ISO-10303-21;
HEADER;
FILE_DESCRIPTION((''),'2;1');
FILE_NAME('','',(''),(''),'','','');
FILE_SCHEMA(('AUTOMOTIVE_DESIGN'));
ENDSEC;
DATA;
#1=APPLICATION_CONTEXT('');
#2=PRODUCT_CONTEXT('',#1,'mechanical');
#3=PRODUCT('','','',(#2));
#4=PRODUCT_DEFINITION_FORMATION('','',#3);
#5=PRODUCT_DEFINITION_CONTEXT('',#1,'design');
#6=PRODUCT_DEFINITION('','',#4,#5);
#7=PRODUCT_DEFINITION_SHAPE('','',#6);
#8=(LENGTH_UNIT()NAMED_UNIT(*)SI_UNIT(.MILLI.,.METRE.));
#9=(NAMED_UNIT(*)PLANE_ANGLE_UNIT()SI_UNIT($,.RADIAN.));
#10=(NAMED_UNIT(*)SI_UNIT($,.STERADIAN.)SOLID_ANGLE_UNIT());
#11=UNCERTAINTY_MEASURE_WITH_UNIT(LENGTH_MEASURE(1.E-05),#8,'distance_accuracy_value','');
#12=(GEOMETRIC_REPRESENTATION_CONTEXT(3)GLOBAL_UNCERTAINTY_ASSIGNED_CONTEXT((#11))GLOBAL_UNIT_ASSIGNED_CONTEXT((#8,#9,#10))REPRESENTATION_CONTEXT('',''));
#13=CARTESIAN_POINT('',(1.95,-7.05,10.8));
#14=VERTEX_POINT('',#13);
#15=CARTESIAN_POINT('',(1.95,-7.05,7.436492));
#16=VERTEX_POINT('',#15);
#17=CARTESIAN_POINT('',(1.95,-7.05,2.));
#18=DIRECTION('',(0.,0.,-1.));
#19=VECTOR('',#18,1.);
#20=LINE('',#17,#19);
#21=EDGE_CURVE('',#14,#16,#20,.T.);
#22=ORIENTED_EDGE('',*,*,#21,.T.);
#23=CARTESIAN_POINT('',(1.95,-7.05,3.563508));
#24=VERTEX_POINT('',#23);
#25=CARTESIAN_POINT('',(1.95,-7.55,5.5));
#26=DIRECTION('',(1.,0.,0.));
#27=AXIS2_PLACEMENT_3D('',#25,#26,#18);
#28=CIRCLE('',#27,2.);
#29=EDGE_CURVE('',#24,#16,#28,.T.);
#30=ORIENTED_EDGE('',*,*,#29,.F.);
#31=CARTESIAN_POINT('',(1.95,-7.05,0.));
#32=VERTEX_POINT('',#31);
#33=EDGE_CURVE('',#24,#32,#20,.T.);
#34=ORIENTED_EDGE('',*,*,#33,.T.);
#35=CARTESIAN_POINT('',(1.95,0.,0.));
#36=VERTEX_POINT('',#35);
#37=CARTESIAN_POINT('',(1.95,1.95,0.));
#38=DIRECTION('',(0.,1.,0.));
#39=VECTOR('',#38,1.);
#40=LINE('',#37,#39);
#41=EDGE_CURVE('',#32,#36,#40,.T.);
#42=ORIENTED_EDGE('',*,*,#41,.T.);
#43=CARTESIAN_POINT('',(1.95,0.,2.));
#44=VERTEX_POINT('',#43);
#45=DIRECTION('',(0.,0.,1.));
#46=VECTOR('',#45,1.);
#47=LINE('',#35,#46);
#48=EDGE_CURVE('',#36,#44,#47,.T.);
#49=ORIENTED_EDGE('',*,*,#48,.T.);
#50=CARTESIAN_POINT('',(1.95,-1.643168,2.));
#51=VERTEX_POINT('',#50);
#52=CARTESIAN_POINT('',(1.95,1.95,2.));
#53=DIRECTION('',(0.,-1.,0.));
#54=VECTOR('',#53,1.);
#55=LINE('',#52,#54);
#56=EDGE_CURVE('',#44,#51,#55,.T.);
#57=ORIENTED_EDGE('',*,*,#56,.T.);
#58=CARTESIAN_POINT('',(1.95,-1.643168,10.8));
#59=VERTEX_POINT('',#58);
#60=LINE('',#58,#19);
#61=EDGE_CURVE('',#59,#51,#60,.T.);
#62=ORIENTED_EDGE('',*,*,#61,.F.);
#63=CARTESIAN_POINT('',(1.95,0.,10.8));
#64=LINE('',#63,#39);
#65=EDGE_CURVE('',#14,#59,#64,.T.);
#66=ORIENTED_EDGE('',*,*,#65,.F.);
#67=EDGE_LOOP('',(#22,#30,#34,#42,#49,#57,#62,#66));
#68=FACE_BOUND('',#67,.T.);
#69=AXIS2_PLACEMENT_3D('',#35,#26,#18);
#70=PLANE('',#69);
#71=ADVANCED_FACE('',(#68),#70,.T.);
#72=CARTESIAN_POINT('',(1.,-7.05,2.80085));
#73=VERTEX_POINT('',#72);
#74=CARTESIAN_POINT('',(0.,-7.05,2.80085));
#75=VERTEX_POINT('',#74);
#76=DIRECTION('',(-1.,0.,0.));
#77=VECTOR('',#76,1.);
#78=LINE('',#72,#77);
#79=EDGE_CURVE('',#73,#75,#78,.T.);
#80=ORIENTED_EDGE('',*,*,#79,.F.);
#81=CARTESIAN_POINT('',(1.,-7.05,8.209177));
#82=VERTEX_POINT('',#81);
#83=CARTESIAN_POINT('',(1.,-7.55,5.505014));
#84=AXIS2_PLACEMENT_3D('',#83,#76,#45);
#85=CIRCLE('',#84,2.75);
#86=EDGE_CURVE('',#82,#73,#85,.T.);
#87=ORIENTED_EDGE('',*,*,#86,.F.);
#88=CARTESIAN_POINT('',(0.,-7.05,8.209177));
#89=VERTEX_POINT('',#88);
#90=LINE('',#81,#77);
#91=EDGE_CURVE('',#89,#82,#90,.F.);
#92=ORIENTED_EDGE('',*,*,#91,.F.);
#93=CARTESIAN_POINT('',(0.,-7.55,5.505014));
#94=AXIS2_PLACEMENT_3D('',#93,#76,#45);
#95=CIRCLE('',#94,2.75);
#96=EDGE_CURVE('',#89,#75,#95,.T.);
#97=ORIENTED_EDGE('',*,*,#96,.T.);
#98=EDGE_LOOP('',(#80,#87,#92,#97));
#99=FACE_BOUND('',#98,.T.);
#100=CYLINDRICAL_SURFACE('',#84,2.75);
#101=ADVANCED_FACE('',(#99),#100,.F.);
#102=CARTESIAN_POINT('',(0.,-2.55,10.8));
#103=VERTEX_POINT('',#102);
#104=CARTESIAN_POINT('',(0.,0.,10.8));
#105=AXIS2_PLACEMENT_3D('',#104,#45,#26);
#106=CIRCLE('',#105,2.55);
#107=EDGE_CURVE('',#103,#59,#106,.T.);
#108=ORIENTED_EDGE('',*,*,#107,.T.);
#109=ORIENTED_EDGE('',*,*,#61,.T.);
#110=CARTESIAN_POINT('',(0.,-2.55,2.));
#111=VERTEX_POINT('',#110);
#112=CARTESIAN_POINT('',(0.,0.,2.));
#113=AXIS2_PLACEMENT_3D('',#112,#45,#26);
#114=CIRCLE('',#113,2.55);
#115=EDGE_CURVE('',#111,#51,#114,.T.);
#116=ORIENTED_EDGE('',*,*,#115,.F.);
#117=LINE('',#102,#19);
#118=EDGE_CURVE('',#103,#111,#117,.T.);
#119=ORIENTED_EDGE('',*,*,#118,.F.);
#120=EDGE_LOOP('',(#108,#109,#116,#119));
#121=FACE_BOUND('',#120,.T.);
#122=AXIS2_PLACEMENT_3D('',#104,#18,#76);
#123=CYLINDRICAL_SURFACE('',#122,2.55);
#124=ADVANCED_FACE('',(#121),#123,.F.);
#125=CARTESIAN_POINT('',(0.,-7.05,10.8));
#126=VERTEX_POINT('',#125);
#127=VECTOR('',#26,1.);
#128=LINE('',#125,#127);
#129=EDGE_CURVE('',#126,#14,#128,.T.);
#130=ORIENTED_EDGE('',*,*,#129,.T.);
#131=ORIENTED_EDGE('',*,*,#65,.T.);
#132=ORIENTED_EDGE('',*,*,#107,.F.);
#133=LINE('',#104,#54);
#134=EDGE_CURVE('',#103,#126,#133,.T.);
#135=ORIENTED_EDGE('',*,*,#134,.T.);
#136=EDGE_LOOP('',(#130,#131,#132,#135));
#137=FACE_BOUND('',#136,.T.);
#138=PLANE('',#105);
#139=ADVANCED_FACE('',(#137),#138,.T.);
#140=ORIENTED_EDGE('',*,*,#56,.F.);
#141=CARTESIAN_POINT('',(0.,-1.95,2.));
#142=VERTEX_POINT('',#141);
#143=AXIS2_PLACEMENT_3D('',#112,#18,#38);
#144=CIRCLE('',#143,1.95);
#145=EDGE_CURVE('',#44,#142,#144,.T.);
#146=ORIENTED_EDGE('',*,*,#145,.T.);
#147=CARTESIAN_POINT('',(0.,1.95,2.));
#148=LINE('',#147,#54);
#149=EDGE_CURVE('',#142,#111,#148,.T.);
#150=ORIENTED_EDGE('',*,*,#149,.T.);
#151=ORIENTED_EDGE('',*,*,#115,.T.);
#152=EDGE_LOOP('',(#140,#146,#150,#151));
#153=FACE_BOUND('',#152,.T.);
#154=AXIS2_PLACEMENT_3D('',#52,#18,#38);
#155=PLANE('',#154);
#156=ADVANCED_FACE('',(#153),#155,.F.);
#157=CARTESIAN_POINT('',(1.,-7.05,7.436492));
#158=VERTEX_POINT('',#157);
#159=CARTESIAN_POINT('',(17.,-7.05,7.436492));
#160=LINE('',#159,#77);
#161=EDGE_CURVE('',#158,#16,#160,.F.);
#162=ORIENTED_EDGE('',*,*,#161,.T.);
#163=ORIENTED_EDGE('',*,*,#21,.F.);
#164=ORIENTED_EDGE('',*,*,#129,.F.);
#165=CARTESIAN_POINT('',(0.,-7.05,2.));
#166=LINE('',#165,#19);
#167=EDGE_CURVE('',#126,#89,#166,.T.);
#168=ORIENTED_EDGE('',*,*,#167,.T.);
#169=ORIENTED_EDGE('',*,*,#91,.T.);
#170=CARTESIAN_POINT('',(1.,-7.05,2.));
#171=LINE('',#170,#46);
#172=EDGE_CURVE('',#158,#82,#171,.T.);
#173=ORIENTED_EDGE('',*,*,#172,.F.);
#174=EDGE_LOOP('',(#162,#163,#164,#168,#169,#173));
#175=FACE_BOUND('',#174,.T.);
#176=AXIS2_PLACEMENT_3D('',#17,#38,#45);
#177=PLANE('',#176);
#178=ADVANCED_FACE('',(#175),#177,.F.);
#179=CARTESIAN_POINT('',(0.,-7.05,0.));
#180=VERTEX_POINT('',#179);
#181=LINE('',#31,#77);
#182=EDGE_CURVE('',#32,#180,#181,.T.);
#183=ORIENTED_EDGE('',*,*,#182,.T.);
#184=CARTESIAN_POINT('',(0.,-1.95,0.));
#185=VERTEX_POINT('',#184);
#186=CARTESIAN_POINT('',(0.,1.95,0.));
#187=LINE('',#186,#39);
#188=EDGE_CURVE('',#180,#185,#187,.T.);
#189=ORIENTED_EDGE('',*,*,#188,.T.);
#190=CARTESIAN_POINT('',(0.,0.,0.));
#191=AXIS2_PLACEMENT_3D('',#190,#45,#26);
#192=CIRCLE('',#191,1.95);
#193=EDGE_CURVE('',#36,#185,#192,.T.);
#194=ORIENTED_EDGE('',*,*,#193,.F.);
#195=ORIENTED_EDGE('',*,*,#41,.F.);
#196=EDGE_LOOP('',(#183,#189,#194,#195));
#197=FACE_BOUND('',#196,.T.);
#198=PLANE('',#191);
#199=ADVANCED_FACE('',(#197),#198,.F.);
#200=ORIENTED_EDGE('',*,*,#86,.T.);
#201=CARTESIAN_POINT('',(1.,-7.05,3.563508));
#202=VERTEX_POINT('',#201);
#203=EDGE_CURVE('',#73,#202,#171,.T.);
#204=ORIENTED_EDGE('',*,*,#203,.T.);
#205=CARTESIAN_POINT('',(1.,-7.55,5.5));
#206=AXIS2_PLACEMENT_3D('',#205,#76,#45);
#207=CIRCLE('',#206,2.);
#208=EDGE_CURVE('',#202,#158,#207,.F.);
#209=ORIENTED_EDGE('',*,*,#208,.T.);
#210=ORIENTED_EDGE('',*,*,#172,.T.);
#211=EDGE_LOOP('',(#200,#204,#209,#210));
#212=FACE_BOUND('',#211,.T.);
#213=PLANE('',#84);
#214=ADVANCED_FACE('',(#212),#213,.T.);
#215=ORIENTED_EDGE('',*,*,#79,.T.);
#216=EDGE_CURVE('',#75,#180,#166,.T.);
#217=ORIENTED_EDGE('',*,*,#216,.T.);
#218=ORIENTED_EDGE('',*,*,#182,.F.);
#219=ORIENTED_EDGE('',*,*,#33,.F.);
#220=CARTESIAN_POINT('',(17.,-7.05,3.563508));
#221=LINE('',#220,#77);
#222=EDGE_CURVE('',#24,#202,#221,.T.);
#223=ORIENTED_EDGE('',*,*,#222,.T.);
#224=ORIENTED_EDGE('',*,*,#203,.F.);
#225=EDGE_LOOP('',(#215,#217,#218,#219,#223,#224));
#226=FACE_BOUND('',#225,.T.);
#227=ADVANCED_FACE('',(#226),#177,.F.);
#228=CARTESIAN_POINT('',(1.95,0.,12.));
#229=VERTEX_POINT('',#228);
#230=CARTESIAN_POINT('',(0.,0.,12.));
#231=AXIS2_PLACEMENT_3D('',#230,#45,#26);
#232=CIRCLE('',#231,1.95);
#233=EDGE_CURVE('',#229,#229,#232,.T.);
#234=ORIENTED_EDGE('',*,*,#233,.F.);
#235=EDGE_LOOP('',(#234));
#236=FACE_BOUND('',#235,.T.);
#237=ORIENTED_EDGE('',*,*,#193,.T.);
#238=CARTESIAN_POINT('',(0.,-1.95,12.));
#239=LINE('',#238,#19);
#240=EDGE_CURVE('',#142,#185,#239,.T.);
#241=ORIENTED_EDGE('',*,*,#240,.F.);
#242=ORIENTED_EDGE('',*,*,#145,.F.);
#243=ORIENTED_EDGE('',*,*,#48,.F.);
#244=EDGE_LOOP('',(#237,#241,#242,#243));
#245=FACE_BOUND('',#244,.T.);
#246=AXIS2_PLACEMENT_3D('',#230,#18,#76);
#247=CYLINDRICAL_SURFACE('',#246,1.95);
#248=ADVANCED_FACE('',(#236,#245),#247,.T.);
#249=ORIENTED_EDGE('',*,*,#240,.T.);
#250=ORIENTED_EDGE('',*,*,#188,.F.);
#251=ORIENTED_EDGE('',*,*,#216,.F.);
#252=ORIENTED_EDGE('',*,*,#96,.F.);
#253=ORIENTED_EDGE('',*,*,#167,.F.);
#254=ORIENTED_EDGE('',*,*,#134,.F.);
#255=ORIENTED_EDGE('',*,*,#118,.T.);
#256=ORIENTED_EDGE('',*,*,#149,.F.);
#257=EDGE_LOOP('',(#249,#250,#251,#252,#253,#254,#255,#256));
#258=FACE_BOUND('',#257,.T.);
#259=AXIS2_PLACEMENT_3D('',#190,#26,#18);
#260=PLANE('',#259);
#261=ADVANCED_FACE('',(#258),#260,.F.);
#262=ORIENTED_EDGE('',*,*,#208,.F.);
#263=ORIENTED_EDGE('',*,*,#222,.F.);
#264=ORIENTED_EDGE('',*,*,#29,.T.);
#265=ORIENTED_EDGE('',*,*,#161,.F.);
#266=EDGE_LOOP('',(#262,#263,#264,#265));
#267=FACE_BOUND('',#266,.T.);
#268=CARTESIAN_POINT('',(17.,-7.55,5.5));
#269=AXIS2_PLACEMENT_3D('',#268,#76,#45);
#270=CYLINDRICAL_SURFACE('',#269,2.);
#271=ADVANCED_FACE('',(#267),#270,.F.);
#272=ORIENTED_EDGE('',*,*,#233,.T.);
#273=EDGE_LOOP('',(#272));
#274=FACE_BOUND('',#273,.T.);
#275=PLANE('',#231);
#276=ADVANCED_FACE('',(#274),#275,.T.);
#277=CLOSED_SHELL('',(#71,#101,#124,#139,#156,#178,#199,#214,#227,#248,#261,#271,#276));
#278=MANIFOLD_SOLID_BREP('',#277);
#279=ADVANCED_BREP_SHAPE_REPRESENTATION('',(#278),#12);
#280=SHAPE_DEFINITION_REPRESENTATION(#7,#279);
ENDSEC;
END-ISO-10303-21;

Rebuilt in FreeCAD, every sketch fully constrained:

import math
import FreeCAD as App
import Part
import Sketcher

V = App.Vector
Q = App.Units.Quantity


def add_polygon(sketch, points):
    """Adds a closed chain of lines whose ends are joined by coincident constraints."""
    first, n = sketch.GeometryCount, len(points)
    for a, b in zip(points, points[1:] + points[:1]):
        sketch.addGeometry(Part.LineSegment(App.Vector(*a, 0), App.Vector(*b, 0)), False)
    for i in range(n):
        sketch.addConstraint(Sketcher.Constraint("Coincident", first + i, 2, first + (i + 1) % n, 1))

doc = App.newDocument("Part")
body = doc.addObject("PartDesign::Body", "Body")

sketch1 = doc.addObject("Sketcher::SketchObject", "Sketch")
body.addObject(sketch1)
sketch1.AttachmentSupport = (doc.XY_Plane, [""])
sketch1.MapMode = "FlatFace"
sketch1.addGeometry(Part.Circle(V(0, 0, 0), V(0, 0, 1), 1.9), False)
sketch1.addConstraint(Sketcher.Constraint("Coincident", 0, 3, -1, 1))
sketch1.addConstraint(Sketcher.Constraint("Diameter", 0, Q("3.9 mm")))
pad1 = doc.addObject("PartDesign::Pad", "Pad")
body.addObject(pad1)
pad1.Profile = sketch1
pad1.Length = 12

sketch2 = doc.addObject("Sketcher::SketchObject", "Sketch001")
body.addObject(sketch2)
sketch2.AttachmentSupport = (doc.YZ_Plane, [""])
sketch2.MapMode = "FlatFace"
add_polygon(sketch2, [(1.9, 2), (-7, 2), (-7, 0), (1.9, 0)])
sketch2.addConstraint(Sketcher.Constraint("Horizontal", 0))
sketch2.addConstraint(Sketcher.Constraint("Vertical", 1))
sketch2.addConstraint(Sketcher.Constraint("Horizontal", 2))
sketch2.addConstraint(Sketcher.Constraint("Vertical", 3))
sketch2.addConstraint(Sketcher.Constraint("PointOnObject", 1, 2, -1))
sketch2.addConstraint(Sketcher.Constraint("DistanceX", 0, 2, 0, 1, Q("9 mm")))
sketch2.addConstraint(Sketcher.Constraint("DistanceY", 1, 2, 1, 1, Q("2 mm")))
sketch2.addConstraint(Sketcher.Constraint("DistanceX", 0, 2, -1, 1, Q("7.05 mm")))
pad2 = doc.addObject("PartDesign::Pad", "Pad001")
body.addObject(pad2)
pad2.Profile = sketch2
pad2.Length = 1.95

sketch3 = doc.addObject("Sketcher::SketchObject", "Sketch002")
body.addObject(sketch3)
sketch3.AttachmentSupport = (doc.XY_Plane, [""])
sketch3.MapMode = "FlatFace"
sketch3.AttachmentOffset = App.Placement(V(0, 0, 2), App.Rotation())
sketch3.addGeometry(Part.ArcOfCircle(Part.Circle(V(0, 0, 0), V(0, 0, 1), 2.6), math.radians(-90), math.radians(-40)), False)
sketch3.addGeometry(Part.LineSegment(V(0, -2.5, 0), V(0, -7, 0)), False)
sketch3.addGeometry(Part.LineSegment(V(0, -7, 0), V(1.9, -7, 0)), False)
sketch3.addGeometry(Part.LineSegment(V(1.9, -7, 0), V(1.9, -1.6, 0)), False)
sketch3.addConstraint(Sketcher.Constraint("Coincident", 0, 1, 1, 1))
sketch3.addConstraint(Sketcher.Constraint("Coincident", 1, 2, 2, 1))
sketch3.addConstraint(Sketcher.Constraint("Coincident", 2, 2, 3, 1))
sketch3.addConstraint(Sketcher.Constraint("Coincident", 3, 2, 0, 2))
sketch3.addConstraint(Sketcher.Constraint("Vertical", 1))
sketch3.addConstraint(Sketcher.Constraint("Horizontal", 2))
sketch3.addConstraint(Sketcher.Constraint("Vertical", 3))
sketch3.addConstraint(Sketcher.Constraint("Coincident", 0, 3, -1, 1))
sketch3.addConstraint(Sketcher.Constraint("PointOnObject", 0, 1, -2))
sketch3.addConstraint(Sketcher.Constraint("DistanceY", 1, 2, 1, 1, Q("4.5 mm")))
sketch3.addConstraint(Sketcher.Constraint("DistanceX", 2, 1, 2, 2, Q("1.95 mm")))
sketch3.addConstraint(Sketcher.Constraint("DistanceY", 0, 1, -1, 1, Q("2.55 mm")))
pad3 = doc.addObject("PartDesign::Pad", "Pad002")
body.addObject(pad3)
pad3.Profile = sketch3
pad3.Length = 8.8

sketch4 = doc.addObject("Sketcher::SketchObject", "Sketch003")
body.addObject(sketch4)
sketch4.AttachmentSupport = (doc.YZ_Plane, [""])
sketch4.MapMode = "FlatFace"
sketch4.addGeometry(Part.Circle(V(-7.5, 5.5, 0), V(0, 0, 1), 2), False)
sketch4.addConstraint(Sketcher.Constraint("Diameter", 0, Q("4 mm")))
sketch4.addConstraint(Sketcher.Constraint("DistanceY", -1, 1, 0, 3, Q("5.5 mm")))
sketch4.addConstraint(Sketcher.Constraint("DistanceX", 0, 3, -1, 1, Q("7.55 mm")))
pocket1 = doc.addObject("PartDesign::Pocket", "Pocket")
body.addObject(pocket1)
pocket1.Profile = sketch4
pocket1.Length = 17
pocket1.Reversed = True

sketch5 = doc.addObject("Sketcher::SketchObject", "Sketch004")
body.addObject(sketch5)
sketch5.AttachmentSupport = (doc.YZ_Plane, [""])
sketch5.MapMode = "FlatFace"
sketch5.addGeometry(Part.Circle(V(-7.5, 5.5, 0), V(0, 0, 1), 2.8), False)
sketch5.addConstraint(Sketcher.Constraint("Diameter", 0, Q("5.5 mm")))
sketch5.addConstraint(Sketcher.Constraint("DistanceX", 0, 3, -1, 1, Q("7.55 mm")))
sketch5.addConstraint(Sketcher.Constraint("DistanceY", -1, 1, 0, 3, Q("5.505014 mm")))
pocket2 = doc.addObject("PartDesign::Pocket", "Pocket001")
body.addObject(pocket2)
pocket2.Profile = sketch5
pocket2.Length = 1
pocket2.Reversed = True

sketch6 = doc.addObject("Sketcher::SketchObject", "Sketch005")
body.addObject(sketch6)
sketch6.AttachmentSupport = (doc.XY_Plane, [""])
sketch6.MapMode = "FlatFace"
sketch6.AttachmentOffset = App.Placement(V(0, 0, 2), App.Rotation())
sketch6.addGeometry(Part.LineSegment(V(1.9, 0, 0), V(1.9, 1.9, 0)), False)
sketch6.addGeometry(Part.LineSegment(V(1.9, 1.9, 0), V(0, 1.9, 0)), False)
sketch6.addGeometry(Part.ArcOfCircle(Part.Circle(V(0, 0, 0), V(0, 0, 1), 2), math.radians(0), math.radians(90)), False)
sketch6.addConstraint(Sketcher.Constraint("Coincident", 0, 2, 1, 1))
sketch6.addConstraint(Sketcher.Constraint("Tangent", 1, 2, 2, 2))
sketch6.addConstraint(Sketcher.Constraint("Tangent", 2, 1, 0, 1))
sketch6.addConstraint(Sketcher.Constraint("Vertical", 0))
sketch6.addConstraint(Sketcher.Constraint("Horizontal", 1))
sketch6.addConstraint(Sketcher.Constraint("Coincident", 2, 3, -1, 1))
sketch6.addConstraint(Sketcher.Constraint("Radius", 2, Q("1.950001 mm")))
pocket3 = doc.addObject("PartDesign::Pocket", "Pocket002")
body.addObject(pocket3)
pocket3.Profile = sketch6
pocket3.Type = "ThroughAll"

doc.recompute()
